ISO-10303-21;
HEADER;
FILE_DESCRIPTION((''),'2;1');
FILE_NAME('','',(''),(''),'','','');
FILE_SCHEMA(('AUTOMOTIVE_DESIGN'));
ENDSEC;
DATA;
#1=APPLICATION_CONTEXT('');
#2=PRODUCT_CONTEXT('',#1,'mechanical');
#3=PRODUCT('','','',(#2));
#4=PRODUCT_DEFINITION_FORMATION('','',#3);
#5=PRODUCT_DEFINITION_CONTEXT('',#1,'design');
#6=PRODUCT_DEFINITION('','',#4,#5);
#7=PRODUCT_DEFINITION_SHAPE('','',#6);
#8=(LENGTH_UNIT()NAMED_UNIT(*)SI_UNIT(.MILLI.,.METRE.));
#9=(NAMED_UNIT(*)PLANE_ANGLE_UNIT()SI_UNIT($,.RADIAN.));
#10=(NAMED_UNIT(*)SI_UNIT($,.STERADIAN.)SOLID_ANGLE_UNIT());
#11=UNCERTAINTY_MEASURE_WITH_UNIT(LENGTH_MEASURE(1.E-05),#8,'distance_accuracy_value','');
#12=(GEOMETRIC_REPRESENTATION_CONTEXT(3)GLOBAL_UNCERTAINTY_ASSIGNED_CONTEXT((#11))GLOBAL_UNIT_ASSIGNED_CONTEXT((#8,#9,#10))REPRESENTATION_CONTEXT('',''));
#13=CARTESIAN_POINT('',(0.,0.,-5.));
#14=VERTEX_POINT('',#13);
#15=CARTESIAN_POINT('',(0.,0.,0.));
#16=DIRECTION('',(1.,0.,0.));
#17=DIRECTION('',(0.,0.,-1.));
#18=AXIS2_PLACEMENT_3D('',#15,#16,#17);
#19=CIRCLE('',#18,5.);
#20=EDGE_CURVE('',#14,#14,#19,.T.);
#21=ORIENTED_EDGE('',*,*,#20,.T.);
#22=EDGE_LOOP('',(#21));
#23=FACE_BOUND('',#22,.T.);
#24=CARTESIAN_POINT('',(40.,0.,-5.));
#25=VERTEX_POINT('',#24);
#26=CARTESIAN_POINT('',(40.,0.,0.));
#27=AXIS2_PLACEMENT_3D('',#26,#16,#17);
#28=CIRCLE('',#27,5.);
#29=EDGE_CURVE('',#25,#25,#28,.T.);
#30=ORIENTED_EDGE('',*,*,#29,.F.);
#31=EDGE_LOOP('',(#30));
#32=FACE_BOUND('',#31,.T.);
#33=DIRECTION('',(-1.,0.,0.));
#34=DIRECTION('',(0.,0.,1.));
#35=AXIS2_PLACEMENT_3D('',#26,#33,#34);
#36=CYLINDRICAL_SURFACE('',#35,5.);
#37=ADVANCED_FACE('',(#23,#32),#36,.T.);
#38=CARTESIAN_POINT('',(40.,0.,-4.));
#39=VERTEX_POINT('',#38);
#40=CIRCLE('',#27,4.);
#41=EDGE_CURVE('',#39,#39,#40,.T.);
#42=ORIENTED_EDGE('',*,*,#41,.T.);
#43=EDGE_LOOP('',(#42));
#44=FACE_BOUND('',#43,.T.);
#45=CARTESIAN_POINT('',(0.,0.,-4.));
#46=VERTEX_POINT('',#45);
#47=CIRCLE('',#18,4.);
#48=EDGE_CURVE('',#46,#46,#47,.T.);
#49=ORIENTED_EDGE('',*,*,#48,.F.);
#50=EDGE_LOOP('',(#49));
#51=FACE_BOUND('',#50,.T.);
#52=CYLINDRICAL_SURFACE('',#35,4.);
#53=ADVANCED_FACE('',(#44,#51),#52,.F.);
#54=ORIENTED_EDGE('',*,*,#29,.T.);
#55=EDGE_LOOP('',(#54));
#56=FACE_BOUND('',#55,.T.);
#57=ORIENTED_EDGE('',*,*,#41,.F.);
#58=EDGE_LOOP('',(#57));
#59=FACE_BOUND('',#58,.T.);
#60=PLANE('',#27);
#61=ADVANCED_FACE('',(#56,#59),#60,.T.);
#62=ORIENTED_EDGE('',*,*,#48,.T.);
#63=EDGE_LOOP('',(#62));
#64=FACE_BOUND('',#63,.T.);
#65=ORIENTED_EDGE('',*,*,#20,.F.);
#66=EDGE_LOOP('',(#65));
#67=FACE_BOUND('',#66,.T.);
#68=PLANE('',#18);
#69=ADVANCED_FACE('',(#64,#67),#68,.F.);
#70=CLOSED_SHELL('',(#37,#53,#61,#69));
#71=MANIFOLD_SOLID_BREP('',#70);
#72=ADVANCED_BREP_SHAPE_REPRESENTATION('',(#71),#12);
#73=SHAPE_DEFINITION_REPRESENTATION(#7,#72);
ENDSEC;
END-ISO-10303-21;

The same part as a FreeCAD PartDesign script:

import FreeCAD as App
import Part
import Sketcher

V = App.Vector
Q = App.Units.Quantity

doc = App.newDocument("Part")
body = doc.addObject("PartDesign::Body", "Body")

# Sketch on YZ plane
sketch1 = body.newObject("Sketcher::SketchObject", "Sketch")
sketch1.AttachmentSupport = (doc.getObject("YZ_Plane"), [""])
sketch1.MapMode = "FlatFace"
sketch1.addGeometry([
    Part.Circle(V(0, 0, 0), V(0, 0, 1), 5),
    Part.Circle(V(0, 0, 0), V(0, 0, 1), 4),
], False)
sketch1.addConstraint([
    Sketcher.Constraint("Coincident", 0, 3, -1, 1),
    Sketcher.Constraint("Coincident", 1, 3, -1, 1),
    Sketcher.Constraint("Diameter", 0, Q("10 mm")),
    Sketcher.Constraint("Diameter", 1, Q("8 mm")),
])
pad1 = body.newObject("PartDesign::Pad", "Pad")
pad1.Profile = sketch1
pad1.Length = 40

doc.recompute()
